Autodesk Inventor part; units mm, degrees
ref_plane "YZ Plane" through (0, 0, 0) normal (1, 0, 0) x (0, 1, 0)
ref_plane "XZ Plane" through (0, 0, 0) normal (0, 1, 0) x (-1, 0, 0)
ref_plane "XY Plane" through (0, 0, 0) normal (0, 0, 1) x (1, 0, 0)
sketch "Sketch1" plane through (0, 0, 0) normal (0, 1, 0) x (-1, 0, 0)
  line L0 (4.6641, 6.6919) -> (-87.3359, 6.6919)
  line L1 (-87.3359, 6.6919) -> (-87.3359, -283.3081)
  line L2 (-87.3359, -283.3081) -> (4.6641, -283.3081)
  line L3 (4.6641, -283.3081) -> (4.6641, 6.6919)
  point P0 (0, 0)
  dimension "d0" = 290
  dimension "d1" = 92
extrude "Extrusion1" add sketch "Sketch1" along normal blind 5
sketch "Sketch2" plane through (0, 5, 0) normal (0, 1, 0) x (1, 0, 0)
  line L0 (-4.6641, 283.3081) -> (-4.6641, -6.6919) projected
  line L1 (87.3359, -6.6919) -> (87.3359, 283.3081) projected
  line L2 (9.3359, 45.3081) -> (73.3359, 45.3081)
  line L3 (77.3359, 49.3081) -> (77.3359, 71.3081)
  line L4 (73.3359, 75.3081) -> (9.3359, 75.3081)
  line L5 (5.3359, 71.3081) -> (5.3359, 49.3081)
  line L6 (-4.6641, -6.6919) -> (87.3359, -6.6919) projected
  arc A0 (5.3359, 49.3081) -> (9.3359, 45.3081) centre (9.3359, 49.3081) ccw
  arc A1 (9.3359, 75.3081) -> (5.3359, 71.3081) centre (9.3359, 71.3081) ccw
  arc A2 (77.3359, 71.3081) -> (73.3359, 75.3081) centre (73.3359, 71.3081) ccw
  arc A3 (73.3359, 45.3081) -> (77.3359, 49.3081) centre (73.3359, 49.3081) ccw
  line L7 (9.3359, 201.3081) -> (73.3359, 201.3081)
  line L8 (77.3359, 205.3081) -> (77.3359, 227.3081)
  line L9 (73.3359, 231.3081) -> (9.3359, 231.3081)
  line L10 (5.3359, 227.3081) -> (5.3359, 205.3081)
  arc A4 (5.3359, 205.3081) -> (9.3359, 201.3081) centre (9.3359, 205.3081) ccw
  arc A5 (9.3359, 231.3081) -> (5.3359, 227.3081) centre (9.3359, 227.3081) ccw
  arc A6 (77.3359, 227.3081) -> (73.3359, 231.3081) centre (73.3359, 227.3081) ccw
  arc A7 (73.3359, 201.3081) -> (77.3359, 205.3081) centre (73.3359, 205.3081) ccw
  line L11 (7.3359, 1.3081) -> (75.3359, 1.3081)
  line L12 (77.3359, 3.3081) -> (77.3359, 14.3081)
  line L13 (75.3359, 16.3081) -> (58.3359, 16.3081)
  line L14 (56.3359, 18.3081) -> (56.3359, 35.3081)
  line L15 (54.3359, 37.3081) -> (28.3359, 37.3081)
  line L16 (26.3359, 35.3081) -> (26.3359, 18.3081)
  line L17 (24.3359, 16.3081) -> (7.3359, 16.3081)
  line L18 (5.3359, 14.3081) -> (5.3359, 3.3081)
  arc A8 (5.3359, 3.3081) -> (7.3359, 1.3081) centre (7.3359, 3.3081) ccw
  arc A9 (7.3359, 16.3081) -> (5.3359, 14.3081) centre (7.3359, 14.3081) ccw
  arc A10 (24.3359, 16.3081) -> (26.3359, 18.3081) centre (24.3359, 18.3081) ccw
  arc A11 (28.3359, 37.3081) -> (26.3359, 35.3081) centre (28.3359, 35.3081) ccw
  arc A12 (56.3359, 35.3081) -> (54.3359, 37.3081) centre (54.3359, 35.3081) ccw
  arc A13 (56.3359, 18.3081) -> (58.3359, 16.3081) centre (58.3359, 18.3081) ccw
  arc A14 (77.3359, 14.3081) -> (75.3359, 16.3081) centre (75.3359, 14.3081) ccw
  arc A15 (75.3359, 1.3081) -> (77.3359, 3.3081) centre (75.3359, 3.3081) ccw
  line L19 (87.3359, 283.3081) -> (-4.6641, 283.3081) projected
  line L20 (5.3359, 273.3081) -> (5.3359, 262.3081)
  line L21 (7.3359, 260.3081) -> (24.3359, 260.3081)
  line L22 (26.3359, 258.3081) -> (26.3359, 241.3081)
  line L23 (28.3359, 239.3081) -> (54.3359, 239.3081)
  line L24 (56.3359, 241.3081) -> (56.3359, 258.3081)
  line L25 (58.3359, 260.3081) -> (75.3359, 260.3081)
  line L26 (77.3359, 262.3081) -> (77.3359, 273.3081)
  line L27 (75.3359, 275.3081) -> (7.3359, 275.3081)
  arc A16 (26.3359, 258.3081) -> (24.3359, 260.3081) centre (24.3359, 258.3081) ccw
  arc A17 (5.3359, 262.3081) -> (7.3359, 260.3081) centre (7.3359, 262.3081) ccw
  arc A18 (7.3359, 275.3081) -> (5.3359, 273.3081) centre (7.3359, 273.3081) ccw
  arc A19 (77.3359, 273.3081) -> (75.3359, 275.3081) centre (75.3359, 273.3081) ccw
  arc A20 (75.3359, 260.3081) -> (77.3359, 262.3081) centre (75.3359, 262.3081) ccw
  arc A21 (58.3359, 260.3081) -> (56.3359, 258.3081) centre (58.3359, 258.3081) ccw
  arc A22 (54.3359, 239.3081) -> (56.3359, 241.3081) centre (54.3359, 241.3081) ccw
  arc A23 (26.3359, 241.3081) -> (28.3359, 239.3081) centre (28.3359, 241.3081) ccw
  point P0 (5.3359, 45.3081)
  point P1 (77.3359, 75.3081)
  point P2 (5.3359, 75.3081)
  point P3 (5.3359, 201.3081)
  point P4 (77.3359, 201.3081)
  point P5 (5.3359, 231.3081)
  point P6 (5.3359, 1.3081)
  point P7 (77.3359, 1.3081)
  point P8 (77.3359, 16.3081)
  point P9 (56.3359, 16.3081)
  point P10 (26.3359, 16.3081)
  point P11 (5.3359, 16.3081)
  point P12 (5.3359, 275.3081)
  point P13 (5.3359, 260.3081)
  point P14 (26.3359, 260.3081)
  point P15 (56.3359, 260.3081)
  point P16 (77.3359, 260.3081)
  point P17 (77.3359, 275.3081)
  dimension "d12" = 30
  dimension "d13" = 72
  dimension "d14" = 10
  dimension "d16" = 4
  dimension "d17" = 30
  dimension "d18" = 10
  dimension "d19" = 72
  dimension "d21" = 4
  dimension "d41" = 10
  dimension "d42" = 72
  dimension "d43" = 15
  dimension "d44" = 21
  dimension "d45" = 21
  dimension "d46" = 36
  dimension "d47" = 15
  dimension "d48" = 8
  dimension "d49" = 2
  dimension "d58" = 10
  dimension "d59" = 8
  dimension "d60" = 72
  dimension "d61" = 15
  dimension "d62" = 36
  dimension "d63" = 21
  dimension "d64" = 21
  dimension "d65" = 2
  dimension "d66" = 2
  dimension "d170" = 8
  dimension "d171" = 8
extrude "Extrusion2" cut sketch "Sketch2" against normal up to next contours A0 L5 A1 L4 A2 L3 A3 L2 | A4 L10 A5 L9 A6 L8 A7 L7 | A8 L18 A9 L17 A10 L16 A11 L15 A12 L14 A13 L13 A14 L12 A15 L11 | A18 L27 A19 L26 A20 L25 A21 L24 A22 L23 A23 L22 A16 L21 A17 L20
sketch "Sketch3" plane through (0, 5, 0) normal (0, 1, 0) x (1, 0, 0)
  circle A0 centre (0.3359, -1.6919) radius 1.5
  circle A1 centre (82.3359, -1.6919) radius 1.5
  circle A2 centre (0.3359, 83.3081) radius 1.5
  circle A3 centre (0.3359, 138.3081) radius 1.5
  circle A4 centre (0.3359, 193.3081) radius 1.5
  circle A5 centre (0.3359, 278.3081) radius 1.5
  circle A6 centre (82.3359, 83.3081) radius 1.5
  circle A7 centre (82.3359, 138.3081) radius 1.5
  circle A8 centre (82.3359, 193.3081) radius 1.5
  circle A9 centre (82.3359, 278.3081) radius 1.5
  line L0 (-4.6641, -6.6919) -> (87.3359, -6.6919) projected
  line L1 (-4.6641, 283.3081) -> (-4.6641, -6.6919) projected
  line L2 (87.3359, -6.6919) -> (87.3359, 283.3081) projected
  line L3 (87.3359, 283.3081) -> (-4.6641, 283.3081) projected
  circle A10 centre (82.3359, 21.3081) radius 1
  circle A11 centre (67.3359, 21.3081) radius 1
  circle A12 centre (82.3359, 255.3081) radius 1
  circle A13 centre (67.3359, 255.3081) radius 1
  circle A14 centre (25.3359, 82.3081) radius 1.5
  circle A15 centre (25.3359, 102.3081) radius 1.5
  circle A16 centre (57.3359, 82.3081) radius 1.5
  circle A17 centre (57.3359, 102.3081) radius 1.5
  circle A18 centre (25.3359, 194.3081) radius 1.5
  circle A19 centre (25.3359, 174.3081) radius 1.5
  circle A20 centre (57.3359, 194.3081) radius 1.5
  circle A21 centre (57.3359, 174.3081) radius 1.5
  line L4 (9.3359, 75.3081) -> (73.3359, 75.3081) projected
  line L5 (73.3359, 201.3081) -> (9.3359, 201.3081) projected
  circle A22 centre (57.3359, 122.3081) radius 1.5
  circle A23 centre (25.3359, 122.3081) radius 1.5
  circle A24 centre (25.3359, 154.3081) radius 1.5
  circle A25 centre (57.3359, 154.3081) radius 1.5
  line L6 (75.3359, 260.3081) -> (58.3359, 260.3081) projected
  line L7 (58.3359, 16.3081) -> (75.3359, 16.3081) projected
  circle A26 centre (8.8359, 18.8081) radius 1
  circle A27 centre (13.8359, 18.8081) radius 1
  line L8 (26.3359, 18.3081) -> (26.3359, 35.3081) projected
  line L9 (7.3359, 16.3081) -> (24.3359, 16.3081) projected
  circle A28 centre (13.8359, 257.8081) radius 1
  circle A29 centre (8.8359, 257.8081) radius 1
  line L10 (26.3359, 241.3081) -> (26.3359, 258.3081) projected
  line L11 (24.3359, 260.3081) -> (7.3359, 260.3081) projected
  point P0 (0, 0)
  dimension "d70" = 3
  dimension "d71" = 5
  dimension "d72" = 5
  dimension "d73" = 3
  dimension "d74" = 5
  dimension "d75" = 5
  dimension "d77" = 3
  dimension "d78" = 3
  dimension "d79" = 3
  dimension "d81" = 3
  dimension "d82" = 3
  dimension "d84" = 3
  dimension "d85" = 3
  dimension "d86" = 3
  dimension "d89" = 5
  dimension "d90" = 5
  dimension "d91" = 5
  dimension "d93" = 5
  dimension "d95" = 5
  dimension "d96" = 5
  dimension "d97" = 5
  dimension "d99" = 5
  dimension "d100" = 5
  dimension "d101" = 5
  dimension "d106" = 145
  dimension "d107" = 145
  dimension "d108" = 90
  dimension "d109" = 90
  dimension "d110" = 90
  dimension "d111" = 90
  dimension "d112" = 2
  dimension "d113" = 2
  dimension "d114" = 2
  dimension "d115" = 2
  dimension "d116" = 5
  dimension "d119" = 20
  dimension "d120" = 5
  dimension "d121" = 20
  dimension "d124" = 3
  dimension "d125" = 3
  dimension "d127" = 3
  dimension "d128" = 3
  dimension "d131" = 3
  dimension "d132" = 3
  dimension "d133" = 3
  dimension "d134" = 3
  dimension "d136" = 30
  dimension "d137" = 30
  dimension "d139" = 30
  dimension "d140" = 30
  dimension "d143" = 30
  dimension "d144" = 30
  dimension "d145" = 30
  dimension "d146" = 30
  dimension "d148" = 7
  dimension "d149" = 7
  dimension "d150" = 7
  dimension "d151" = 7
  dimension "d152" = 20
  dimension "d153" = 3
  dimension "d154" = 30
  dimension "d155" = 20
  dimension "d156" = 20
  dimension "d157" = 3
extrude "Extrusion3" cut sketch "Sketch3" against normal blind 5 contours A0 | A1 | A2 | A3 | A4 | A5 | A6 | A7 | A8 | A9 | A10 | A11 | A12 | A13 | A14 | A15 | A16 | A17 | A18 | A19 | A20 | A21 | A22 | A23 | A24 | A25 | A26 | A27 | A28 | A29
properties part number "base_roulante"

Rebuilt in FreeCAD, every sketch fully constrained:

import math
import FreeCAD as App
import Part
import Sketcher

V = App.Vector


def add_polygon(sketch, points):
    """Adds a closed chain of lines whose ends are joined by coincident constraints."""
    first, n = sketch.GeometryCount, len(points)
    for a, b in zip(points, points[1:] + points[:1]):
        sketch.addGeometry(Part.LineSegment(App.Vector(*a, 0), App.Vector(*b, 0)), False)
    for i in range(n):
        sketch.addConstraint(Sketcher.Constraint("Coincident", first + i, 2, first + (i + 1) % n, 1))

doc = App.newDocument("Part")
body = doc.addObject("PartDesign::Body", "Body")

sketch1 = body.newObject("Sketcher::SketchObject", "Sketch")
sketch1.AttachmentSupport = (doc.getObject("XZ_Plane"), [""])
sketch1.MapMode = "FlatFace"
add_polygon(sketch1, [(-5, -283), (-5, 7), (87, 7), (87, -283)])
sketch1.addConstraint(Sketcher.Constraint("Vertical", 0))
sketch1.addConstraint(Sketcher.Constraint("Horizontal", 1))
sketch1.addConstraint(Sketcher.Constraint("Vertical", 2))
sketch1.addConstraint(Sketcher.Constraint("Horizontal", 3))
sketch1.addConstraint(Sketcher.Constraint("DistanceX", 1, 1, 1, 2, 92.0))
sketch1.addConstraint(Sketcher.Constraint("DistanceY", 0, 1, 0, 2, 290.0))
sketch1.addConstraint(Sketcher.Constraint("DistanceX", 0, 2, -1, 1, 4.664))
sketch1.addConstraint(Sketcher.Constraint("DistanceY", -1, 1, 0, 2, 6.692))
pad1 = body.newObject("PartDesign::Pad", "Pad")
pad1.Profile = sketch1
pad1.Length = 5
pad1.Reversed = True

sketch2 = body.newObject("Sketcher::SketchObject", "Sketch001")
sketch2.AttachmentSupport = (doc.getObject("XZ_Plane"), [""])
sketch2.MapMode = "FlatFace"
sketch2.AttachmentOffset = App.Placement(V(0, 0, -5), App.Rotation())
sketch2.addGeometry(Part.ArcOfCircle(Part.Circle(V(9.3, -49.3, 0), V(0, 0, 1), 4), math.radians(90), math.radians(180)), False)
sketch2.addGeometry(Part.LineSegment(V(9.3, -45.3, 0), V(73.3, -45.3, 0)), False)
sketch2.addGeometry(Part.ArcOfCircle(Part.Circle(V(73.3, -49.3, 0), V(0, 0, 1), 4), math.radians(0), math.radians(90)), False)
sketch2.addGeometry(Part.LineSegment(V(77.3, -49.3, 0), V(77.3, -71.3, 0)), False)
sketch2.addGeometry(Part.ArcOfCircle(Part.Circle(V(73.3, -71.3, 0), V(0, 0, 1), 4), math.radians(-90), math.radians(0)), False)
sketch2.addGeometry(Part.LineSegment(V(73.3, -75.3, 0), V(9.3, -75.3, 0)), False)
sketch2.addGeometry(Part.ArcOfCircle(Part.Circle(V(9.3, -71.3, 0), V(0, 0, 1), 4), math.radians(180), math.radians(270)), False)
sketch2.addGeometry(Part.LineSegment(V(5.3, -71.3, 0), V(5.3, -49.3, 0)), False)
sketch2.addGeometry(Part.ArcOfCircle(Part.Circle(V(9.3, -205.3, 0), V(0, 0, 1), 4), math.radians(90), math.radians(180)), False)
sketch2.addGeometry(Part.LineSegment(V(9.3, -201.3, 0), V(73.3, -201.3, 0)), False)
sketch2.addGeometry(Part.ArcOfCircle(Part.Circle(V(73.3, -205.3, 0), V(0, 0, 1), 4), math.radians(0), math.radians(90)), False)
sketch2.addGeometry(Part.LineSegment(V(77.3, -205.3, 0), V(77.3, -227.3, 0)), False)
sketch2.addGeometry(Part.ArcOfCircle(Part.Circle(V(73.3, -227.3, 0), V(0, 0, 1), 4), math.radians(-90), math.radians(0)), False)
sketch2.addGeometry(Part.LineSegment(V(73.3, -231.3, 0), V(9.3, -231.3, 0)), False)
sketch2.addGeometry(Part.ArcOfCircle(Part.Circle(V(9.3, -227.3, 0), V(0, 0, 1), 4), math.radians(180), math.radians(270)), False)
sketch2.addGeometry(Part.LineSegment(V(5.3, -227.3, 0), V(5.3, -205.3, 0)), False)
sketch2.addGeometry(Part.ArcOfCircle(Part.Circle(V(7.3, -3.3, 0), V(0, 0, 1), 2), math.radians(90), math.radians(180)), False)
sketch2.addGeometry(Part.LineSegment(V(7.3, -1.3, 0), V(75.3, -1.3, 0)), False)
sketch2.addGeometry(Part.ArcOfCircle(Part.Circle(V(75.3, -3.3, 0), V(0, 0, 1), 2), math.radians(0), math.radians(90)), False)
sketch2.addGeometry(Part.LineSegment(V(77.3, -3.3, 0), V(77.3, -14.3, 0)), False)
sketch2.addGeometry(Part.ArcOfCircle(Part.Circle(V(75.3, -14.3, 0), V(0, 0, 1), 2), math.radians(-90), math.radians(0)), False)
sketch2.addGeometry(Part.LineSegment(V(75.3, -16.3, 0), V(58.3, -16.3, 0)), False)
sketch2.addGeometry(Part.ArcOfCircle(Part.Circle(V(58.3, -18.3, 0), V(0, 0, 1), 2), math.radians(90), math.radians(180)), False)
sketch2.addGeometry(Part.LineSegment(V(56.3, -18.3, 0), V(56.3, -35.3, 0)), False)
sketch2.addGeometry(Part.ArcOfCircle(Part.Circle(V(54.3, -35.3, 0), V(0, 0, 1), 2), math.radians(-90), math.radians(0)), False)
sketch2.addGeometry(Part.LineSegment(V(54.3, -37.3, 0), V(28.3, -37.3, 0)), False)
sketch2.addGeometry(Part.ArcOfCircle(Part.Circle(V(28.3, -35.3, 0), V(0, 0, 1), 2), math.radians(180), math.radians(270)), False)
sketch2.addGeometry(Part.LineSegment(V(26.3, -35.3, 0), V(26.3, -18.3, 0)), False)
sketch2.addGeometry(Part.ArcOfCircle(Part.Circle(V(24.3, -18.3, 0), V(0, 0, 1), 2), math.radians(0), math.radians(90)), False)
sketch2.addGeometry(Part.LineSegment(V(24.3, -16.3, 0), V(7.3, -16.3, 0)), False)
sketch2.addGeometry(Part.ArcOfCircle(Part.Circle(V(7.3, -14.3, 0), V(0, 0, 1), 2), math.radians(180), math.radians(270)), False)
sketch2.addGeometry(Part.LineSegment(V(5.3, -14.3, 0), V(5.3, -3.3, 0)), False)
sketch2.addGeometry(Part.ArcOfCircle(Part.Circle(V(7.3, -273.3, 0), V(0, 0, 1), 2), math.radians(180), math.radians(270)), False)
sketch2.addGeometry(Part.LineSegment(V(5.3, -273.3, 0), V(5.3, -262.3, 0)), False)
sketch2.addGeometry(Part.ArcOfCircle(Part.Circle(V(7.3, -262.3, 0), V(0, 0, 1), 2), math.radians(90), math.radians(180)), False)
sketch2.addGeometry(Part.LineSegment(V(7.3, -260.3, 0), V(24.3, -260.3, 0)), False)
sketch2.addGeometry(Part.ArcOfCircle(Part.Circle(V(24.3, -258.3, 0), V(0, 0, 1), 2), math.radians(-90), math.radians(0)), False)
sketch2.addGeometry(Part.LineSegment(V(26.3, -258.3, 0), V(26.3, -241.3, 0)), False)
sketch2.addGeometry(Part.ArcOfCircle(Part.Circle(V(28.3, -241.3, 0), V(0, 0, 1), 2), math.radians(90), math.radians(180)), False)
sketch2.addGeometry(Part.LineSegment(V(28.3, -239.3, 0), V(54.3, -239.3, 0)), False)
sketch2.addGeometry(Part.ArcOfCircle(Part.Circle(V(54.3, -241.3, 0), V(0, 0, 1), 2), math.radians(0), math.radians(90)), False)
sketch2.addGeometry(Part.LineSegment(V(56.3, -241.3, 0), V(56.3, -258.3, 0)), False)
sketch2.addGeometry(Part.ArcOfCircle(Part.Circle(V(58.3, -258.3, 0), V(0, 0, 1), 2), math.radians(180), math.radians(270)), False)
sketch2.addGeometry(Part.LineSegment(V(58.3, -260.3, 0), V(75.3, -260.3, 0)), False)
sketch2.addGeometry(Part.ArcOfCircle(Part.Circle(V(75.3, -262.3, 0), V(0, 0, 1), 2), math.radians(0), math.radians(90)), False)
sketch2.addGeometry(Part.LineSegment(V(77.3, -262.3, 0), V(77.3, -273.3, 0)), False)
sketch2.addGeometry(Part.ArcOfCircle(Part.Circle(V(75.3, -273.3, 0), V(0, 0, 1), 2), math.radians(-90), math.radians(0)), False)
sketch2.addGeometry(Part.LineSegment(V(75.3, -275.3, 0), V(7.3, -275.3, 0)), False)
sketch2.addConstraint(Sketcher.Constraint("Tangent", 0, 1, 1, 1))
sketch2.addConstraint(Sketcher.Constraint("Tangent", 1, 2, 2, 2))
sketch2.addConstraint(Sketcher.Constraint("Tangent", 2, 1, 3, 1))
sketch2.addConstraint(Sketcher.Constraint("Tangent", 3, 2, 4, 2))
sketch2.addConstraint(Sketcher.Constraint("Tangent", 4, 1, 5, 1))
sketch2.addConstraint(Sketcher.Constraint("Tangent", 5, 2, 6, 2))
sketch2.addConstraint(Sketcher.Constraint("Tangent", 6, 1, 7, 1))
sketch2.addConstraint(Sketcher.Constraint("Tangent", 7, 2, 0, 2))
sketch2.addConstraint(Sketcher.Constraint("Tangent", 8, 1, 9, 1))
sketch2.addConstraint(Sketcher.Constraint("Tangent", 9, 2, 10, 2))
sketch2.addConstraint(Sketcher.Constraint("Tangent", 10, 1, 11, 1))
sketch2.addConstraint(Sketcher.Constraint("Tangent", 11, 2, 12, 2))
sketch2.addConstraint(Sketcher.Constraint("Tangent", 12, 1, 13, 1))
sketch2.addConstraint(Sketcher.Constraint("Tangent", 13, 2, 14, 2))
sketch2.addConstraint(Sketcher.Constraint("Tangent", 14, 1, 15, 1))
sketch2.addConstraint(Sketcher.Constraint("Tangent", 15, 2, 8, 2))
sketch2.addConstraint(Sketcher.Constraint("Tangent", 16, 1, 17, 1))
sketch2.addConstraint(Sketcher.Constraint("Tangent", 17, 2, 18, 2))
sketch2.addConstraint(Sketcher.Constraint("Tangent", 18, 1, 19, 1))
sketch2.addConstraint(Sketcher.Constraint("Tangent", 19, 2, 20, 2))
sketch2.addConstraint(Sketcher.Constraint("Tangent", 20, 1, 21, 1))
sketch2.addConstraint(Sketcher.Constraint("Tangent", 21, 2, 22, 1))
sketch2.addConstraint(Sketcher.Constraint("Tangent", 22, 2, 23, 1))
sketch2.addConstraint(Sketcher.Constraint("Tangent", 23, 2, 24, 2))
sketch2.addConstraint(Sketcher.Constraint("Tangent", 24, 1, 25, 1))
sketch2.addConstraint(Sketcher.Constraint("Tangent", 25, 2, 26, 2))
sketch2.addConstraint(Sketcher.Constraint("Tangent", 26, 1, 27, 1))
sketch2.addConstraint(Sketcher.Constraint("Tangent", 27, 2, 28, 1))
sketch2.addConstraint(Sketcher.Constraint("Tangent", 28, 2, 29, 1))
sketch2.addConstraint(Sketcher.Constraint("Tangent", 29, 2, 30, 2))
sketch2.addConstraint(Sketcher.Constraint("Tangent", 30, 1, 31, 1))
sketch2.addConstraint(Sketcher.Constraint("Tangent", 31, 2, 16, 2))
sketch2.addConstraint(Sketcher.Constraint("Tangent", 32, 1, 33, 1))
sketch2.addConstraint(Sketcher.Constraint("Tangent", 33, 2, 34, 2))
sketch2.addConstraint(Sketcher.Constraint("Tangent", 34, 1, 35, 1))
sketch2.addConstraint(Sketcher.Constraint("Tangent", 35, 2, 36, 1))
sketch2.addConstraint(Sketcher.Constraint("Tangent", 36, 2, 37, 1))
sketch2.addConstraint(Sketcher.Constraint("Tangent", 37, 2, 38, 2))
sketch2.addConstraint(Sketcher.Constraint("Tangent", 38, 1, 39, 1))
sketch2.addConstraint(Sketcher.Constraint("Tangent", 39, 2, 40, 2))
sketch2.addConstraint(Sketcher.Constraint("Tangent", 40, 1, 41, 1))
sketch2.addConstraint(Sketcher.Constraint("Tangent", 41, 2, 42, 1))
sketch2.addConstraint(Sketcher.Constraint("Tangent", 42, 2, 43, 1))
sketch2.addConstraint(Sketcher.Constraint("Tangent", 43, 2, 44, 2))
sketch2.addConstraint(Sketcher.Constraint("Tangent", 44, 1, 45, 1))
sketch2.addConstraint(Sketcher.Constraint("Tangent", 45, 2, 46, 2))
sketch2.addConstraint(Sketcher.Constraint("Tangent", 46, 1, 47, 1))
sketch2.addConstraint(Sketcher.Constraint("Tangent", 47, 2, 32, 2))
sketch2.addConstraint(Sketcher.Constraint("Horizontal", 1))
sketch2.addConstraint(Sketcher.Constraint("Vertical", 3))
sketch2.addConstraint(Sketcher.Constraint("Horizontal", 5))
sketch2.addConstraint(Sketcher.Constraint("Vertical", 7))
sketch2.addConstraint(Sketcher.Constraint("Horizontal", 9))
sketch2.addConstraint(Sketcher.Constraint("Vertical", 11))
sketch2.addConstraint(Sketcher.Constraint("Horizontal", 13))
sketch2.addConstraint(Sketcher.Constraint("Vertical", 15))
sketch2.addConstraint(Sketcher.Constraint("Horizontal", 17))
sketch2.addConstraint(Sketcher.Constraint("Vertical", 19))
sketch2.addConstraint(Sketcher.Constraint("Horizontal", 21))
sketch2.addConstraint(Sketcher.Constraint("Vertical", 23))
sketch2.addConstraint(Sketcher.Constraint("Horizontal", 25))
sketch2.addConstraint(Sketcher.Constraint("Vertical", 27))
sketch2.addConstraint(Sketcher.Constraint("Horizontal", 29))
sketch2.addConstraint(Sketcher.Constraint("Vertical", 31))
sketch2.addConstraint(Sketcher.Constraint("Vertical", 33))
sketch2.addConstraint(Sketcher.Constraint("Horizontal", 35))
sketch2.addConstraint(Sketcher.Constraint("Vertical", 37))
sketch2.addConstraint(Sketcher.Constraint("Horizontal", 39))
sketch2.addConstraint(Sketcher.Constraint("Vertical", 41))
sketch2.addConstraint(Sketcher.Constraint("Horizontal", 43))
sketch2.addConstraint(Sketcher.Constraint("Vertical", 45))
sketch2.addConstraint(Sketcher.Constraint("Horizontal", 47))
sketch2.addConstraint(Sketcher.Constraint("Equal", 0, 2))
sketch2.addConstraint(Sketcher.Constraint("Equal", 2, 4))
sketch2.addConstraint(Sketcher.Constraint("Equal", 4, 6))
sketch2.addConstraint(Sketcher.Constraint("Equal", 6, 8))
sketch2.addConstraint(Sketcher.Constraint("Equal", 8, 10))
sketch2.addConstraint(Sketcher.Constraint("Equal", 10, 12))
sketch2.addConstraint(Sketcher.Constraint("Equal", 12, 14))
sketch2.addConstraint(Sketcher.Constraint("Equal", 16, 18))
sketch2.addConstraint(Sketcher.Constraint("Equal", 18, 20))
sketch2.addConstraint(Sketcher.Constraint("Equal", 20, 22))
sketch2.addConstraint(Sketcher.Constraint("Equal", 22, 24))
sketch2.addConstraint(Sketcher.Constraint("Equal", 24, 26))
sketch2.addConstraint(Sketcher.Constraint("Equal", 26, 28))
sketch2.addConstraint(Sketcher.Constraint("Equal", 28, 30))
sketch2.addConstraint(Sketcher.Constraint("Equal", 30, 32))
sketch2.addConstraint(Sketcher.Constraint("Equal", 32, 34))
sketch2.addConstraint(Sketcher.Constraint("Equal", 34, 36))
sketch2.addConstraint(Sketcher.Constraint("Equal", 36, 38))
sketch2.addConstraint(Sketcher.Constraint("Equal", 38, 40))
sketch2.addConstraint(Sketcher.Constraint("Equal", 40, 42))
sketch2.addConstraint(Sketcher.Constraint("Equal", 42, 44))
sketch2.addConstraint(Sketcher.Constraint("Equal", 44, 46))
sketch2.addConstraint(Sketcher.Constraint("Horizontal", 22, 3, 28, 3))
sketch2.addConstraint(Sketcher.Constraint("Horizontal", 36, 3, 42, 3))
sketch2.addConstraint(Sketcher.Constraint("Vertical", 6, 3, 8, 3))
sketch2.addConstraint(Sketcher.Constraint("Vertical", 4, 3, 10, 3))
sketch2.addConstraint(Sketcher.Constraint("Vertical", 30, 3, 32, 3))
sketch2.addConstraint(Sketcher.Constraint("Vertical", 28, 3, 36, 3))
sketch2.addConstraint(Sketcher.Constraint("Vertical", 24, 3, 40, 3))
sketch2.addConstraint(Sketcher.Constraint("Vertical", 20, 3, 44, 3))
sketch2.addConstraint(Sketcher.Constraint("Vertical", 11, 2, 18, 1))
sketch2.addConstraint(Sketcher.Constraint("Vertical", 15, 2, 30, 1))
sketch2.addConstraint(Sketcher.Constraint("Equal", 21, 29))
sketch2.addConstraint(Sketcher.Constraint("Equal", 7, 11))
sketch2.addConstraint(Sketcher.Constraint("Equal", 43, 23))
sketch2.addConstraint(Sketcher.Constraint("Equal", 31, 33))
sketch2.addConstraint(Sketcher.Constraint("Equal", 27, 37))
sketch2.addConstraint(Sketcher.Constraint("Radius", 0, 4.0))
sketch2.addConstraint(Sketcher.Constraint("Radius", 16, 2.0))
sketch2.addConstraint(Sketcher.Constraint("DistanceX", 1, 1, 1, 2, 64.0))
sketch2.addConstraint(Sketcher.Constraint("DistanceX", 21, 2, 21, 1, 17.0))
sketch2.addConstraint(Sketcher.Constraint("DistanceY", 3, 2, 3, 1, 22.0))
sketch2.addConstraint(Sketcher.Constraint("DistanceY", 19, 2, 19, 1, 11.0))
sketch2.addConstraint(Sketcher.Constraint("DistanceX", -1, 1, 0, 3, 9.336))
sketch2.addConstraint(Sketcher.Constraint("DistanceY", 0, 3, -1, 1, 49.308))
sketch2.addConstraint(Sketcher.Constraint("DistanceY", 8, 3, -1, 1, 205.308))
sketch2.addConstraint(Sketcher.Constraint("DistanceY", 16, 3, -1, 1, 3.308))
sketch2.addConstraint(Sketcher.Constraint("DistanceY", 32, 3, -1, 1, 273.308))
pocket1 = body.newObject("PartDesign::Pocket", "Pocket")
pocket1.Profile = sketch2
pocket1.Type = "UpToFirst"
pocket1.Reversed = True

sketch3 = body.newObject("Sketcher::SketchObject", "Sketch002")
sketch3.AttachmentSupport = (doc.getObject("XZ_Plane"), [""])
sketch3.MapMode = "FlatFace"
sketch3.AttachmentOffset = App.Placement(V(0, 0, -5), App.Rotation())
sketch3.addGeometry(Part.Circle(V(0.3, 1.7, 0), V(0, 0, 1), 1.5), False)
sketch3.addGeometry(Part.Circle(V(82.3, 1.7, 0), V(0, 0, 1), 1.5), False)
sketch3.addGeometry(Part.Circle(V(0.3, -83.3, 0), V(0, 0, 1), 1.5), False)
sketch3.addGeometry(Part.Circle(V(0.3, -138.3, 0), V(0, 0, 1), 1.5), False)
sketch3.addGeometry(Part.Circle(V(0.3, -193.3, 0), V(0, 0, 1), 1.5), False)
sketch3.addGeometry(Part.Circle(V(0.3, -278.3, 0), V(0, 0, 1), 1.5), False)
sketch3.addGeometry(Part.Circle(V(82.3, -83.3, 0), V(0, 0, 1), 1.5), False)
sketch3.addGeometry(Part.Circle(V(82.3, -138.3, 0), V(0, 0, 1), 1.5), False)
sketch3.addGeometry(Part.Circle(V(82.3, -193.3, 0), V(0, 0, 1), 1.5), False)
sketch3.addGeometry(Part.Circle(V(82.3, -278.3, 0), V(0, 0, 1), 1.5), False)
sketch3.addGeometry(Part.Circle(V(82.3, -21.3, 0), V(0, 0, 1), 1), False)
sketch3.addGeometry(Part.Circle(V(67.3, -21.3, 0), V(0, 0, 1), 1), False)
sketch3.addGeometry(Part.Circle(V(82.3, -255.3, 0), V(0, 0, 1), 1), False)
sketch3.addGeometry(Part.Circle(V(67.3, -255.3, 0), V(0, 0, 1), 1), False)
sketch3.addGeometry(Part.Circle(V(25.3, -82.3, 0), V(0, 0, 1), 1.5), False)
sketch3.addGeometry(Part.Circle(V(25.3, -102.3, 0), V(0, 0, 1), 1.5), False)
sketch3.addGeometry(Part.Circle(V(57.3, -82.3, 0), V(0, 0, 1), 1.5), False)
sketch3.addGeometry(Part.Circle(V(57.3, -102.3, 0), V(0, 0, 1), 1.5), False)
sketch3.addGeometry(Part.Circle(V(25.3, -194.3, 0), V(0, 0, 1), 1.5), False)
sketch3.addGeometry(Part.Circle(V(25.3, -174.3, 0), V(0, 0, 1), 1.5), False)
sketch3.addGeometry(Part.Circle(V(57.3, -194.3, 0), V(0, 0, 1), 1.5), False)
sketch3.addGeometry(Part.Circle(V(57.3, -174.3, 0), V(0, 0, 1), 1.5), False)
sketch3.addGeometry(Part.Circle(V(57.3, -122.3, 0), V(0, 0, 1), 1.5), False)
sketch3.addGeometry(Part.Circle(V(25.3, -122.3, 0), V(0, 0, 1), 1.5), False)
sketch3.addGeometry(Part.Circle(V(25.3, -154.3, 0), V(0, 0, 1), 1.5), False)
sketch3.addGeometry(Part.Circle(V(57.3, -154.3, 0), V(0, 0, 1), 1.5), False)
sketch3.addGeometry(Part.Circle(V(8.8, -18.8, 0), V(0, 0, 1), 1), False)
sketch3.addGeometry(Part.Circle(V(13.8, -18.8, 0), V(0, 0, 1), 1), False)
sketch3.addGeometry(Part.Circle(V(13.8, -257.8, 0), V(0, 0, 1), 1), False)
sketch3.addGeometry(Part.Circle(V(8.8, -257.8, 0), V(0, 0, 1), 1), False)
sketch3.addConstraint(Sketcher.Constraint("Equal", 0, 1))
sketch3.addConstraint(Sketcher.Constraint("Equal", 1, 2))
sketch3.addConstraint(Sketcher.Constraint("Equal", 2, 3))
sketch3.addConstraint(Sketcher.Constraint("Equal", 3, 4))
sketch3.addConstraint(Sketcher.Constraint("Equal", 4, 5))
sketch3.addConstraint(Sketcher.Constraint("Equal", 5, 6))
sketch3.addConstraint(Sketcher.Constraint("Equal", 6, 7))
sketch3.addConstraint(Sketcher.Constraint("Equal", 7, 8))
sketch3.addConstraint(Sketcher.Constraint("Equal", 8, 9))
sketch3.addConstraint(Sketcher.Constraint("Equal", 10, 11))
sketch3.addConstraint(Sketcher.Constraint("Equal", 11, 12))
sketch3.addConstraint(Sketcher.Constraint("Equal", 12, 13))
sketch3.addConstraint(Sketcher.Constraint("Equal", 9, 14))
sketch3.addConstraint(Sketcher.Constraint("Equal", 14, 15))
sketch3.addConstraint(Sketcher.Constraint("Equal", 15, 16))
sketch3.addConstraint(Sketcher.Constraint("Equal", 16, 17))
sketch3.addConstraint(Sketcher.Constraint("Equal", 17, 18))
sketch3.addConstraint(Sketcher.Constraint("Equal", 18, 19))
sketch3.addConstraint(Sketcher.Constraint("Equal", 19, 20))
sketch3.addConstraint(Sketcher.Constraint("Equal", 20, 21))
sketch3.addConstraint(Sketcher.Constraint("Equal", 21, 22))
sketch3.addConstraint(Sketcher.Constraint("Equal", 22, 23))
sketch3.addConstraint(Sketcher.Constraint("Equal", 23, 24))
sketch3.addConstraint(Sketcher.Constraint("Equal", 24, 25))
sketch3.addConstraint(Sketcher.Constraint("Equal", 13, 26))
sketch3.addConstraint(Sketcher.Constraint("Equal", 26, 27))
sketch3.addConstraint(Sketcher.Constraint("Equal", 27, 28))
sketch3.addConstraint(Sketcher.Constraint("Equal", 28, 29))
sketch3.addConstraint(Sketcher.Constraint("Horizontal", 0, 3, 1, 3))
sketch3.addConstraint(Sketcher.Constraint("Horizontal", 2, 3, 6, 3))
sketch3.addConstraint(Sketcher.Constraint("Horizontal", 3, 3, 7, 3))
sketch3.addConstraint(Sketcher.Constraint("Horizontal", 4, 3, 8, 3))
sketch3.addConstraint(Sketcher.Constraint("Horizontal", 5, 3, 9, 3))
sketch3.addConstraint(Sketcher.Constraint("Horizontal", 10, 3, 11, 3))
sketch3.addConstraint(Sketcher.Constraint("Horizontal", 12, 3, 13, 3))
sketch3.addConstraint(Sketcher.Constraint("Horizontal", 14, 3, 16, 3))
sketch3.addConstraint(Sketcher.Constraint("Horizontal", 15, 3, 17, 3))
sketch3.addConstraint(Sketcher.Constraint("Horizontal", 18, 3, 20, 3))
sketch3.addConstraint(Sketcher.Constraint("Horizontal", 19, 3, 21, 3))
sketch3.addConstraint(Sketcher.Constraint("Horizontal", 22, 3, 23, 3))
sketch3.addConstraint(Sketcher.Constraint("Horizontal", 24, 3, 25, 3))
sketch3.addConstraint(Sketcher.Constraint("Horizontal", 26, 3, 27, 3))
sketch3.addConstraint(Sketcher.Constraint("Horizontal", 28, 3, 29, 3))
sketch3.addConstraint(Sketcher.Constraint("Vertical", 0, 3, 2, 3))
sketch3.addConstraint(Sketcher.Constraint("Vertical", 2, 3, 3, 3))
sketch3.addConstraint(Sketcher.Constraint("Vertical", 3, 3, 4, 3))
sketch3.addConstraint(Sketcher.Constraint("Vertical", 4, 3, 5, 3))
sketch3.addConstraint(Sketcher.Constraint("Vertical", 1, 3, 6, 3))
sketch3.addConstraint(Sketcher.Constraint("Vertical", 6, 3, 7, 3))
sketch3.addConstraint(Sketcher.Constraint("Vertical", 7, 3, 8, 3))
sketch3.addConstraint(Sketcher.Constraint("Vertical", 8, 3, 9, 3))
sketch3.addConstraint(Sketcher.Constraint("Vertical", 9, 3, 10, 3))
sketch3.addConstraint(Sketcher.Constraint("Vertical", 10, 3, 12, 3))
sketch3.addConstraint(Sketcher.Constraint("Vertical", 11, 3, 13, 3))
sketch3.addConstraint(Sketcher.Constraint("Vertical", 14, 3, 15, 3))
sketch3.addConstraint(Sketcher.Constraint("Vertical", 16, 3, 17, 3))
sketch3.addConstraint(Sketcher.Constraint("Vertical", 15, 3, 18, 3))
sketch3.addConstraint(Sketcher.Constraint("Vertical", 18, 3, 19, 3))
sketch3.addConstraint(Sketcher.Constraint("Vertical", 17, 3, 20, 3))
sketch3.addConstraint(Sketcher.Constraint("Vertical", 20, 3, 21, 3))
sketch3.addConstraint(Sketcher.Constraint("Vertical", 21, 3, 22, 3))
sketch3.addConstraint(Sketcher.Constraint("Vertical", 19, 3, 23, 3))
sketch3.addConstraint(Sketcher.Constraint("Vertical", 23, 3, 24, 3))
sketch3.addConstraint(Sketcher.Constraint("Vertical", 22, 3, 25, 3))
sketch3.addConstraint(Sketcher.Constraint("Vertical", 27, 3, 28, 3))
sketch3.addConstraint(Sketcher.Constraint("Vertical", 26, 3, 29, 3))
sketch3.addConstraint(Sketcher.Constraint("Diameter", 0, 3.0))
sketch3.addConstraint(Sketcher.Constraint("Diameter", 10, 2.0))
sketch3.addConstraint(Sketcher.Constraint("DistanceY", 15, 3, 14, 3, 20.0))
sketch3.addConstraint(Sketcher.Constraint("DistanceY", 18, 3, 19, 3, 20.0))
sketch3.addConstraint(Sketcher.Constraint("DistanceY", 22, 3, 17, 3, 20.0))
sketch3.addConstraint(Sketcher.Constraint("DistanceY", 19, 3, 24, 3, 20.0))
sketch3.addConstraint(Sketcher.Constraint("DistanceX", 26, 3, 27, 3, 5.0))
sketch3.addConstraint(Sketcher.Constraint("DistanceX", 0, 3, 1, 3, 82.0))
sketch3.addConstraint(Sketcher.Constraint("DistanceY", 2, 3, 0, 3, 85.0))
sketch3.addConstraint(Sketcher.Constraint("DistanceY", 3, 3, 2, 3, 55.0))
sketch3.addConstraint(Sketcher.Constraint("DistanceY", 4, 3, 3, 3, 55.0))
sketch3.addConstraint(Sketcher.Constraint("DistanceY", 5, 3, 4, 3, 85.0))
sketch3.addConstraint(Sketcher.Constraint("DistanceY", 10, 3, 1, 3, 23.0))
sketch3.addConstraint(Sketcher.Constraint("DistanceX", 11, 3, 10, 3, 15.0))
sketch3.addConstraint(Sketcher.Constraint("DistanceY", 9, 3, 12, 3, 23.0))
sketch3.addConstraint(Sketcher.Constraint("DistanceX", 2, 3, 14, 3, 25.0))
sketch3.addConstraint(Sketcher.Constraint("DistanceY", 2, 3, 14, 3, 1.0))
sketch3.addConstraint(Sketcher.Constraint("DistanceX", 16, 3, 6, 3, 25.0))
sketch3.addConstraint(Sketcher.Constraint("DistanceY", 18, 3, 4, 3, 1.0))
sketch3.addConstraint(Sketcher.Constraint("DistanceX", 0, 3, 26, 3, 8.5))
sketch3.addConstraint(Sketcher.Constraint("DistanceY", 26, 3, 0, 3, 20.5))
sketch3.addConstraint(Sketcher.Constraint("DistanceY", 5, 3, 28, 3, 20.5))
sketch3.addConstraint(Sketcher.Constraint("DistanceX", -1, 1, 0, 3, 0.336))
sketch3.addConstraint(Sketcher.Constraint("DistanceY", -1, 1, 0, 3, 1.692))
pocket2 = body.newObject("PartDesign::Pocket", "Pocket001")
pocket2.Profile = sketch3
pocket2.Length = 5
pocket2.Reversed = True

doc.recompute()
